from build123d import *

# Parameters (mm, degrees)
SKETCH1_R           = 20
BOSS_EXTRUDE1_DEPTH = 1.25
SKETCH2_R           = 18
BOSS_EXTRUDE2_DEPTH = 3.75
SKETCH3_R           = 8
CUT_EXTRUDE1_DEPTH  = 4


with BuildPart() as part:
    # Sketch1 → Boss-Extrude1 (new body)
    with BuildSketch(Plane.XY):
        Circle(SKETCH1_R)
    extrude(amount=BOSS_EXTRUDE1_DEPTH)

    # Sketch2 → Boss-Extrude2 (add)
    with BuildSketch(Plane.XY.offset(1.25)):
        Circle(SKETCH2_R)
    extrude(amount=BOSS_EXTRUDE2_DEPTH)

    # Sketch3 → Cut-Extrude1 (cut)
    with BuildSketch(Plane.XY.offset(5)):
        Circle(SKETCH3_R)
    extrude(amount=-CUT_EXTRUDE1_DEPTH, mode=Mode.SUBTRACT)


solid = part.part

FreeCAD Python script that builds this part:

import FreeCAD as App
import Part
import Sketcher

V = App.Vector
Q = App.Units.Quantity

doc = App.newDocument("Part")
body = doc.addObject("PartDesign::Body", "Body")

sketch1 = doc.addObject("Sketcher::SketchObject", "Sketch")
body.addObject(sketch1)
sketch1.AttachmentSupport = (doc.XY_Plane, [""])
sketch1.MapMode = "FlatFace"
sketch1.addGeometry(Part.Circle(V(0, 0, 0), V(0, 0, 1), 20), False)
sketch1.addConstraint([
    Sketcher.Constraint("Coincident", 0, 3, -1, 1),
    Sketcher.Constraint("Diameter", 0, Q("40 mm")),
])
pad1 = doc.addObject("PartDesign::Pad", "Pad")
body.addObject(pad1)
pad1.Profile = sketch1
pad1.Length = 1.25

sketch2 = doc.addObject("Sketcher::SketchObject", "Sketch001")
body.addObject(sketch2)
sketch2.AttachmentSupport = (doc.XY_Plane, [""])
sketch2.MapMode = "FlatFace"
sketch2.AttachmentOffset = App.Placement(V(0, 0, 1.25), App.Rotation())
sketch2.addGeometry(Part.Circle(V(0, 0, 0), V(0, 0, 1), 18), False)
sketch2.addConstraint([
    Sketcher.Constraint("Coincident", 0, 3, -1, 1),
    Sketcher.Constraint("Diameter", 0, Q("36 mm")),
])
pad2 = doc.addObject("PartDesign::Pad", "Pad001")
body.addObject(pad2)
pad2.Profile = sketch2
pad2.Length = 3.75

sketch3 = doc.addObject("Sketcher::SketchObject", "Sketch002")
body.addObject(sketch3)
sketch3.AttachmentSupport = (doc.XY_Plane, [""])
sketch3.MapMode = "FlatFace"
sketch3.AttachmentOffset = App.Placement(V(0, 0, 5), App.Rotation())
sketch3.addGeometry(Part.Circle(V(0, 0, 0), V(0, 0, 1), 8), False)
sketch3.addConstraint([
    Sketcher.Constraint("Coincident", 0, 3, -1, 1),
    Sketcher.Constraint("Diameter", 0, Q("16 mm")),
])
pocket1 = doc.addObject("PartDesign::Pocket", "Pocket")
body.addObject(pocket1)
pocket1.Profile = sketch3
pocket1.Length = 4

doc.recompute()
